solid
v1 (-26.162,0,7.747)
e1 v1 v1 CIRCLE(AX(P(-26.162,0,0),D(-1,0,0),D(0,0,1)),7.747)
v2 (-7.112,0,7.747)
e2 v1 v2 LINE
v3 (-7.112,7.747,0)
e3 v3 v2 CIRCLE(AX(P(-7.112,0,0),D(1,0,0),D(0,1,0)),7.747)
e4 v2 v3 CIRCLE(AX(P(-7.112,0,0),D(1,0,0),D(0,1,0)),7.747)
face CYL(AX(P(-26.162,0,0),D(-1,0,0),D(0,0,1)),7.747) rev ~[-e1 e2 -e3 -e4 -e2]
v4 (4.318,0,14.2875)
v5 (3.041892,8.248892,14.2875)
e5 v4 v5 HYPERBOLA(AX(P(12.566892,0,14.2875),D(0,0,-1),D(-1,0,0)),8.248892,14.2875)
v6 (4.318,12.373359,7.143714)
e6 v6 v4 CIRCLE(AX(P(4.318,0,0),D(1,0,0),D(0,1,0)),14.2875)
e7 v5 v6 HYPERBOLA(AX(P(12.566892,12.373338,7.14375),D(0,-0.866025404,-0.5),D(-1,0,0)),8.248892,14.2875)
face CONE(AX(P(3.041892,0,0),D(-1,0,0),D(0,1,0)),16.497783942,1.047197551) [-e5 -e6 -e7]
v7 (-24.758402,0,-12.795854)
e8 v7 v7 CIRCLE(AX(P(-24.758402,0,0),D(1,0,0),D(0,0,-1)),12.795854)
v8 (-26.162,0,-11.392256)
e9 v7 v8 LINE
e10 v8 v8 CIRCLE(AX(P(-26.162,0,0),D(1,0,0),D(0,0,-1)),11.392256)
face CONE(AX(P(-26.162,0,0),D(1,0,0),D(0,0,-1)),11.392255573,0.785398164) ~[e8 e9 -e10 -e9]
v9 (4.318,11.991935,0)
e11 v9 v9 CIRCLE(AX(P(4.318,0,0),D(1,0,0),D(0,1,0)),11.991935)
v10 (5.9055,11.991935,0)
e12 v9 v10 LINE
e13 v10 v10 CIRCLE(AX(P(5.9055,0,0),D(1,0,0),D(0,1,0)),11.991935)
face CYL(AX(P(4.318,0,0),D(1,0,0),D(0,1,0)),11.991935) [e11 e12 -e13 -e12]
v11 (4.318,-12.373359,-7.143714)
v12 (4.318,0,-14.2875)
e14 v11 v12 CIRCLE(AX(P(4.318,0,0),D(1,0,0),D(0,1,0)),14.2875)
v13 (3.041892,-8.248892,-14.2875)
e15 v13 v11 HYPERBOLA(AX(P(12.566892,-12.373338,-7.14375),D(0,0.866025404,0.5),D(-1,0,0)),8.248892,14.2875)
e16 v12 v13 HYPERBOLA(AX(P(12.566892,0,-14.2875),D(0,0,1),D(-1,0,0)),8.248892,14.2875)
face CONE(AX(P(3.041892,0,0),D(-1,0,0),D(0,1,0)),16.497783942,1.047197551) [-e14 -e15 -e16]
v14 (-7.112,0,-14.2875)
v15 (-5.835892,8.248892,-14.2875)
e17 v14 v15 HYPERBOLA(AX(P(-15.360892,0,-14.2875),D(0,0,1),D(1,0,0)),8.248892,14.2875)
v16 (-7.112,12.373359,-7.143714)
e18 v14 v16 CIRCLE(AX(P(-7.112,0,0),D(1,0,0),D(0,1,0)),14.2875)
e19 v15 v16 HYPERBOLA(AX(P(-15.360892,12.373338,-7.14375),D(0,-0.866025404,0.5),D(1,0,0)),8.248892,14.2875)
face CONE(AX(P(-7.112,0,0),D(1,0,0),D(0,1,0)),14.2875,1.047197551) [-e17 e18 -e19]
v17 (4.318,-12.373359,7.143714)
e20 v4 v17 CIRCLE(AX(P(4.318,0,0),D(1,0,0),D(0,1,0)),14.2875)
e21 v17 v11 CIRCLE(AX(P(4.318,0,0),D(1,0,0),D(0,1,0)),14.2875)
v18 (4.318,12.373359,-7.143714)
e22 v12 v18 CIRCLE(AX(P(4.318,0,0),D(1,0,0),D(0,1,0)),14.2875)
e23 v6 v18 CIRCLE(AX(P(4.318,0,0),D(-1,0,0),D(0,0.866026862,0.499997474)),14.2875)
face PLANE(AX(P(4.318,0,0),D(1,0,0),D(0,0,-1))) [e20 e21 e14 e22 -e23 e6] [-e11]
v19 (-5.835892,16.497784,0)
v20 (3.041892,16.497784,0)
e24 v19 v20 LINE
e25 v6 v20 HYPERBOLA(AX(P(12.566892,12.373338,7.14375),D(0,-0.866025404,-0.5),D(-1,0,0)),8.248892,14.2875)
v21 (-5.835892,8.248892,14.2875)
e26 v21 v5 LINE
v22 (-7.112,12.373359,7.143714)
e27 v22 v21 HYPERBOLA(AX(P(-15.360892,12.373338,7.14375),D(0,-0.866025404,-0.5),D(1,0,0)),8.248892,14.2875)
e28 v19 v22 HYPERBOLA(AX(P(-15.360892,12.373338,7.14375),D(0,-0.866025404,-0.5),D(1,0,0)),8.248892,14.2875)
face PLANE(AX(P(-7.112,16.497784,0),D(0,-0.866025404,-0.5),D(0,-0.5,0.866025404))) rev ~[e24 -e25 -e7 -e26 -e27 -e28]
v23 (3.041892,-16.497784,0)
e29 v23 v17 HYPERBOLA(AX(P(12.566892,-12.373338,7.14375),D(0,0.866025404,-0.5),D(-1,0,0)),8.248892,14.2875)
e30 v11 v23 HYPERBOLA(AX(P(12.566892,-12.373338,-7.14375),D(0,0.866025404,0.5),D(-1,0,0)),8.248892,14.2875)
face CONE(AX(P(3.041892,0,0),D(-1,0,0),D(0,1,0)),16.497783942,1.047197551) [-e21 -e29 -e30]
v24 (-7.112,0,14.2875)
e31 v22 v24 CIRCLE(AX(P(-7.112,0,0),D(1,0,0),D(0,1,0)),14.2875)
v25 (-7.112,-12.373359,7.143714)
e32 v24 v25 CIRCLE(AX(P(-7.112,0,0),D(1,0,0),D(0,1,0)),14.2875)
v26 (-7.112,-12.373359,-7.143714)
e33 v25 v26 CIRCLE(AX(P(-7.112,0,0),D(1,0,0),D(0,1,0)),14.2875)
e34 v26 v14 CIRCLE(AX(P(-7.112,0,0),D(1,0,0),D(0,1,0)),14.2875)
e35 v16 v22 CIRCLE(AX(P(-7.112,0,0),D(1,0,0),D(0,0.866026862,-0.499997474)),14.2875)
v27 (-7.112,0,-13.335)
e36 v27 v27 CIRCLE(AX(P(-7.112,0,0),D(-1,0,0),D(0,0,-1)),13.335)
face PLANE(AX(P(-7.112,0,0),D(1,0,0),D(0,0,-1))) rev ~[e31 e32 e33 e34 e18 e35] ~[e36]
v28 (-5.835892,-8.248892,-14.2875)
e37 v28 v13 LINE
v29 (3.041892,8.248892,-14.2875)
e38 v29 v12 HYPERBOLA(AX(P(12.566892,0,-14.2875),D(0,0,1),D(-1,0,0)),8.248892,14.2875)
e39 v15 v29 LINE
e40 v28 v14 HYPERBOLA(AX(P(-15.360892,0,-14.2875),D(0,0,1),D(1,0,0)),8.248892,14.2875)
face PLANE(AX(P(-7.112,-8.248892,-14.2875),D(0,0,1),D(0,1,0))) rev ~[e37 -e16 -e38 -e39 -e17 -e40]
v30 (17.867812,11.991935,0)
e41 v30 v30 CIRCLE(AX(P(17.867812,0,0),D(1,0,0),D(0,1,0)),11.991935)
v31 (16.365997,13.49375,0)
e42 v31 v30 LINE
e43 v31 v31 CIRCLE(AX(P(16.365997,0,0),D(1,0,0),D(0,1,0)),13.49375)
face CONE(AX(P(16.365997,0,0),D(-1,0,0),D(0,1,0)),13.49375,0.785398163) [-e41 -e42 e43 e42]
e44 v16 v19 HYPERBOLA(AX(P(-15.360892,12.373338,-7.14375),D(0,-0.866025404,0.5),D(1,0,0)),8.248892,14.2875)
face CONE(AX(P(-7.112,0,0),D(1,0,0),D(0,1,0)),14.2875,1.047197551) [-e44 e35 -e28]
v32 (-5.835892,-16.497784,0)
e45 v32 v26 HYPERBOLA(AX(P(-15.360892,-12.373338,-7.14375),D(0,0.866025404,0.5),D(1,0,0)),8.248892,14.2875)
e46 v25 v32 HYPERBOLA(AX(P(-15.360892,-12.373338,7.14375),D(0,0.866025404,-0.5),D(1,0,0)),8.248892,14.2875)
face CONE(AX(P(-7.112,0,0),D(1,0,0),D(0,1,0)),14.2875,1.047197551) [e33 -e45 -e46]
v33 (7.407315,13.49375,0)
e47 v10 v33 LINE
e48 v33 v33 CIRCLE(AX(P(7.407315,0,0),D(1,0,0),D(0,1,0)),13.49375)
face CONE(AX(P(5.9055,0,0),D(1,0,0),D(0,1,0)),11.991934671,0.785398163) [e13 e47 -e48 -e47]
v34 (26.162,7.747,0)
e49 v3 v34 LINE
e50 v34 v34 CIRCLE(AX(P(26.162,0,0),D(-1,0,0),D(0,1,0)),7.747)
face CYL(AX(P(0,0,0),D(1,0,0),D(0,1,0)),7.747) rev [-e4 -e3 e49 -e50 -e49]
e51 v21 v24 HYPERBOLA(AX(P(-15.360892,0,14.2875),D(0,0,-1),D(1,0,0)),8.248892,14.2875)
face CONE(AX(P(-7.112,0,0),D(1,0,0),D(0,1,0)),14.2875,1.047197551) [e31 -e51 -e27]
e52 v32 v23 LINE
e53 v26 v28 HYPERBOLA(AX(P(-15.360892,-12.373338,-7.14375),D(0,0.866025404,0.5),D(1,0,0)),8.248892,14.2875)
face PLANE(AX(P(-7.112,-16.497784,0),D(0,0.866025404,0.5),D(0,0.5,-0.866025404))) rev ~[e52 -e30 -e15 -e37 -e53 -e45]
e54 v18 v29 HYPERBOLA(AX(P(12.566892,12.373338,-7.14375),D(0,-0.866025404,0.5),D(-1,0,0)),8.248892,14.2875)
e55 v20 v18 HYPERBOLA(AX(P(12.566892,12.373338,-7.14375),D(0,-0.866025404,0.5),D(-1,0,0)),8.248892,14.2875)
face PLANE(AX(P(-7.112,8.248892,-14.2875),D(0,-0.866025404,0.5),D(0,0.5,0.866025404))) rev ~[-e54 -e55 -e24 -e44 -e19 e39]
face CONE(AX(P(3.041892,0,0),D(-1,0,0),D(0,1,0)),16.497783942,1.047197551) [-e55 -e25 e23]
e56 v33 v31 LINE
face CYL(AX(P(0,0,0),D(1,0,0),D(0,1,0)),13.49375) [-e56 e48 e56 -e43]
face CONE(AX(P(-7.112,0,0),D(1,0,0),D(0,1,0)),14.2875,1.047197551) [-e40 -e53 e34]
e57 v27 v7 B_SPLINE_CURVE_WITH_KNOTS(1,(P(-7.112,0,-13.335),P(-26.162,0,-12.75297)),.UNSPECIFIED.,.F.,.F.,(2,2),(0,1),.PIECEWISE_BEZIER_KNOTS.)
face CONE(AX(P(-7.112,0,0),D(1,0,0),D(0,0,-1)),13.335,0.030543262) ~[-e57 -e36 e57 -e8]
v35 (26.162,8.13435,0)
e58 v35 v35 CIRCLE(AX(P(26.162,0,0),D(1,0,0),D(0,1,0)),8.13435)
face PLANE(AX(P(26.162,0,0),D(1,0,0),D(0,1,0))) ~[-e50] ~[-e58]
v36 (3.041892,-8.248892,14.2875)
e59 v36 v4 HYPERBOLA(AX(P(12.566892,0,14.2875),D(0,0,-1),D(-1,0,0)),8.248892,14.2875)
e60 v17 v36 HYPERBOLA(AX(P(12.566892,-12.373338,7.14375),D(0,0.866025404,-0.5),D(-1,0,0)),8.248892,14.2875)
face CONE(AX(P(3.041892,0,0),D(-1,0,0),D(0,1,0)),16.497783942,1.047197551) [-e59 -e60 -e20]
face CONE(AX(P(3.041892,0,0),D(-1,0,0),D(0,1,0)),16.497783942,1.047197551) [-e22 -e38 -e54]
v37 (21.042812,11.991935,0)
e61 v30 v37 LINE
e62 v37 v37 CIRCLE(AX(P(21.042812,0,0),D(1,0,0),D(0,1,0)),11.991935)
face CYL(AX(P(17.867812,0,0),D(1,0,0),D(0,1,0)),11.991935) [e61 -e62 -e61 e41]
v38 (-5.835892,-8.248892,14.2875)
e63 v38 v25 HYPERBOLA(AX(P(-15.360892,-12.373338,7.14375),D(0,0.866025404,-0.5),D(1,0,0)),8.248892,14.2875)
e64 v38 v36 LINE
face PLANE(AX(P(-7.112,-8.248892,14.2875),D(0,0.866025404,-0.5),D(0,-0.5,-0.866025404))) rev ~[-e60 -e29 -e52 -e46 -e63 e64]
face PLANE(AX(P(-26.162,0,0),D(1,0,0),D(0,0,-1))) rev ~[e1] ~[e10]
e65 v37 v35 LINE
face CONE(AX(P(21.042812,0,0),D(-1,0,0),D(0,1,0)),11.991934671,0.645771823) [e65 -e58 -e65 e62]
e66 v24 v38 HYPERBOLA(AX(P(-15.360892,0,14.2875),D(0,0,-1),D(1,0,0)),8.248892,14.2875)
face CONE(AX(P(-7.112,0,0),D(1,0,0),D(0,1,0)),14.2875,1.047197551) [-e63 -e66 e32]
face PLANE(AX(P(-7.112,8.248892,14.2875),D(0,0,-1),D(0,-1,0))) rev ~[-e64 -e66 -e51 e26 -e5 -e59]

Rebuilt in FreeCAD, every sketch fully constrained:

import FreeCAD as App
import Part
import Sketcher
from FreeCAD import Vector
Q = App.Units.Quantity


def edges_at(feature, points):
    """Names of the edges that pass closest to the given points."""
    edges = feature.Shape.Edges
    near = lambda p: min(range(len(edges)), key=lambda i: edges[i].distToShape(Part.Vertex(*p))[0])
    return sorted({f"Edge{near(p) + 1}" for p in points})


def add_polygon(sketch, points):
    """Adds a closed chain of lines whose ends are joined by coincident constraints."""
    first, n = sketch.GeometryCount, len(points)
    for a, b in zip(points, points[1:] + points[:1]):
        sketch.addGeometry(Part.LineSegment(App.Vector(*a, 0), App.Vector(*b, 0)), False)
    for i in range(n):
        sketch.addConstraint(Sketcher.Constraint("Coincident", first + i, 2, first + (i + 1) % n, 1))

doc = App.newDocument("Part")
body = doc.addObject("PartDesign::Body", "Body")

# Sketch on XY plane
sketch1 = body.newObject("Sketcher::SketchObject", "Sketch")
sketch1.AttachmentSupport = (doc.getObject("XY_Plane"), [""])
sketch1.MapMode = "FlatFace"
add_polygon(sketch1, [(-26, 13), (-26, 0), (26, 0), (26, 13)])  # lines 0-3
sketch1.addConstraint([
    Sketcher.Constraint("Vertical", 0),
    Sketcher.Constraint("Horizontal", 1),
    Sketcher.Constraint("Vertical", 2),
    Sketcher.Constraint("Horizontal", 3),
    Sketcher.Constraint("Symmetric", 0, 2, 1, 2, -1, 1),
    Sketcher.Constraint("DistanceX", 1, 1, 1, 2, Q("2.06 in")),
    Sketcher.Constraint("DistanceY", 0, 2, 0, 1, Q("0.53125 in")),
])
revolution = body.newObject("PartDesign::Revolution", "Revolution")
revolution.Profile = sketch1
revolution.ReferenceAxis = (sketch1, ["H_Axis"])
revolution.Angle = 360

# Sketch on YZ plane
sketch2 = body.newObject("Sketcher::SketchObject", "Sketch001")
sketch2.AttachmentSupport = (doc.getObject("YZ_Plane"), [""])
sketch2.MapMode = "FlatFace"
sketch2.AttachmentOffset = App.Placement(Vector(0, 0, -0.28 * 25.4), App.Rotation())
add_polygon(sketch2, [(16, 0), (8, 14), (-8, 14), (-16, 0), (-8, -14), (8, -14)])  # lines 0-5
sketch2.addConstraint([
    Sketcher.Constraint("Horizontal", 1),
    Sketcher.Constraint("Horizontal", 4),
    Sketcher.Constraint("Symmetric", 0, 2, 3, 2, -1, 1),
    Sketcher.Constraint("Symmetric", 2, 2, 5, 2, -1, 1),
    Sketcher.Constraint("PointOnObject", 2, 2, -1),
    Sketcher.Constraint("Parallel", 2, 5),
    Sketcher.Constraint("Vertical", 1, 2, 3, 2),
    Sketcher.Constraint("Angle", 0, Q("120 deg")),
    Sketcher.Constraint("DistanceY", -1, 1, 0, 2, Q("0.5625 in")),
    Sketcher.Constraint("DistanceX", 1, 2, 1, 1, 16.497784),
])
pad1 = body.newObject("PartDesign::Pad", "Pad")
pad1.Profile = sketch2
pad1.Length = Q("0.45 in")

# Sketch on XY plane
sketch3 = body.newObject("Sketcher::SketchObject", "Sketch002")
sketch3.AttachmentSupport = (doc.getObject("XY_Plane"), [""])
sketch3.MapMode = "FlatFace"
add_polygon(sketch3, [(7.4, 13.5), (4.3, 13.5), (4.3, 12), (5.9, 12)])  # lines 0-3
add_polygon(sketch3, [(26.2, 13.5), (16.4, 13.5), (17.9, 12), (21, 12), (26.2, 8.1)])  # lines 4-8
sketch3.addConstraint([
    Sketcher.Constraint("Horizontal", 0),
    Sketcher.Constraint("Vertical", 1),
    Sketcher.Constraint("Horizontal", 2),
    Sketcher.Constraint("Horizontal", 4),
    Sketcher.Constraint("Horizontal", 6),
    Sketcher.Constraint("Vertical", 8),
    Sketcher.Constraint("Perpendicular", 3, 5),
    Sketcher.Constraint("Horizontal", 3, 2, 4, 2),
    Sketcher.Constraint("Horizontal", 2, 2, 5, 2),
    Sketcher.Constraint("Equal", 3, 5),
    Sketcher.Constraint("Angle", 7, Q("-37 deg")),
    Sketcher.Constraint("DistanceX", 2, 1, 2, 2, Q("0.0625 in")),
    Sketcher.Constraint("DistanceX", 6, 1, 6, 2, Q("0.125 in")),
    Sketcher.Constraint("DistanceY", 8, 1, 8, 2, Q("0.211 in")),
    Sketcher.Constraint("DistanceX", -1, 1, 0, 2, Q("0.17 in")),
    Sketcher.Constraint("DistanceX", -1, 1, 7, 2, Q("1.03 in")),
    Sketcher.Constraint("DistanceY", -1, 1, 0, 2, Q("0.53125 in")),
    Sketcher.Constraint("DistanceX", 0, 2, 0, 1, 3.089315),
])
groove = body.newObject("PartDesign::Groove", "Groove")
groove.Profile = sketch3
groove.ReferenceAxis = (sketch3, ["H_Axis"])
groove.Angle = 360

# Sketch on XY plane
sketch4 = body.newObject("Sketcher::SketchObject", "Sketch003")
sketch4.AttachmentSupport = (doc.getObject("XY_Plane"), [""])
sketch4.MapMode = "FlatFace"
add_polygon(sketch4, [(-26, 8), (-26, 0), (26, 0), (26, 8)])  # lines 0-3
sketch4.addConstraint([
    Sketcher.Constraint("Vertical", 0),
    Sketcher.Constraint("Horizontal", 1),
    Sketcher.Constraint("Vertical", 2),
    Sketcher.Constraint("Horizontal", 3),
    Sketcher.Constraint("Symmetric", 0, 2, 1, 2, -1, 1),
    Sketcher.Constraint("DistanceX", 1, 1, 1, 2, Q("2.06 in")),
    Sketcher.Constraint("DistanceY", 0, 2, 0, 1, Q("0.305 in")),
])
groove2 = body.newObject("PartDesign::Groove", "Groove001")
groove2.Profile = sketch4
groove2.ReferenceAxis = (sketch4, ["H_Axis"])
groove2.Angle = 360

# Sketch on XY plane
sketch5 = body.newObject("Sketcher::SketchObject", "Sketch004")
sketch5.AttachmentSupport = (doc.getObject("XY_Plane"), [""])
sketch5.MapMode = "FlatFace"
add_polygon(sketch5, [(-7.1, 16.5), (-7.1, 14.3), (-5.8, 16.5)])  # lines 0-2
add_polygon(sketch5, [(3, 16.5), (4.3, 14.3), (4.3, 16.5)])  # lines 3-5
sketch5.addConstraint([
    Sketcher.Constraint("Vertical", 0),
    Sketcher.Constraint("Horizontal", 2),
    Sketcher.Constraint("Vertical", 4),
    Sketcher.Constraint("Horizontal", 5),
    Sketcher.Constraint("Horizontal", 0, 2, 3, 2),
    Sketcher.Constraint("Horizontal", 2, 2, 4, 2),
    Sketcher.Constraint("Equal", 2, 5),
    Sketcher.Constraint("Angle", 1, Q("60 deg")),
    Sketcher.Constraint("DistanceX", 0, 2, -1, 1, Q("0.28 in")),
    Sketcher.Constraint("DistanceX", -1, 1, 3, 2, Q("0.17 in")),
    Sketcher.Constraint("DistanceY", -1, 1, 0, 2, Q("0.5625 in")),
    Sketcher.Constraint("DistanceX", 2, 2, 2, 1, 1.276108),
])
groove3 = body.newObject("PartDesign::Groove", "Groove002")
groove3.Profile = sketch5
groove3.ReferenceAxis = (sketch5, ["H_Axis"])
groove3.Angle = 360

# Sketch on YZ plane
sketch6 = body.newObject("Sketcher::SketchObject", "Sketch005")
sketch6.AttachmentSupport = (doc.getObject("YZ_Plane"), [""])
sketch6.MapMode = "FlatFace"
sketch6.AttachmentOffset = App.Placement(Vector(0, 0, -1.03 * 25.4), App.Rotation())
sketch6.addGeometry(Part.Circle(Vector(0, 0, 0), Vector(0, 0, 1), 13), False)
sketch6.addConstraint([
    Sketcher.Constraint("Coincident", 0, 3, -1, 1),
    Sketcher.Constraint("Diameter", 0, Q("1.0625 in")),
])
pocket1 = body.newObject("PartDesign::Pocket", "Pocket")
pocket1.Profile = sketch6
pocket1.Length = Q("0.75 in")
pocket1.Reversed = True
body2 = doc.addObject("PartDesign::Body", "Body001")

# Sketch on YZ plane
sketch7 = body2.newObject("Sketcher::SketchObject", "Sketch006")
sketch7.AttachmentSupport = (doc.getObject("YZ_Plane001"), [""])
sketch7.MapMode = "FlatFace"
sketch7.AttachmentOffset = App.Placement(Vector(0, 0, -0.28 * 25.4), App.Rotation())
sketch7.addGeometry(Part.Circle(Vector(0, 0, 0), Vector(0, 0, 1), 13), False)
sketch7.addConstraint([
    Sketcher.Constraint("Coincident", 0, 3, -1, 1),
    Sketcher.Constraint("Diameter", 0, Q("1.05 in")),
])
pad2 = body2.newObject("PartDesign::Pad", "Pad001")
pad2.Profile = sketch7
pad2.Length = Q("0.75 in")
pad2.Reversed = True
pad2.TaperAngle = -1.75
doc.recompute()

chamfer = body2.newObject("PartDesign::Chamfer", "Chamfer")
chamfer.Base = (pad2, edges_at(pad2, [(-26.162, 0, 12.753)]))
chamfer.ChamferType = "Two distances"
chamfer.Size = 1.404253
chamfer.Size2 = 1.360714

# Sketch on YZ plane
sketch8 = body2.newObject("Sketcher::SketchObject", "Sketch007")
sketch8.AttachmentSupport = (doc.getObject("YZ_Plane001"), [""])
sketch8.MapMode = "FlatFace"
sketch8.AttachmentOffset = App.Placement(Vector(0, 0, -0.28 * 25.4), App.Rotation())
sketch8.addGeometry(Part.Circle(Vector(0, 0, 0), Vector(0, 0, 1), 13), False)
sketch8.addConstraint([
    Sketcher.Constraint("Coincident", 0, 3, -1, 1),
    Sketcher.Constraint("Diameter", 0, Q("1.05 in")),
])
pad3 = body2.newObject("PartDesign::Pad", "Pad002")
pad3.Profile = sketch8
pad3.Length = Q("0.75 in")
pad3.Reversed = True
pad3.TaperAngle = -15
doc.recompute()

boolean = body2.newObject("PartDesign::Boolean", "Boolean")
boolean.Type = "Fuse"
boolean.addObjects([body])

# Sketch on YZ plane
sketch9 = body2.newObject("Sketcher::SketchObject", "Sketch008")
sketch9.AttachmentSupport = (doc.getObject("YZ_Plane001"), [""])
sketch9.MapMode = "FlatFace"
sketch9.AttachmentOffset = App.Placement(Vector(0, 0, -1.03 * 25.4), App.Rotation())
sketch9.addGeometry(Part.Circle(Vector(0, 0, 0), Vector(0, 0, 1), 8), False)
sketch9.addConstraint([
    Sketcher.Constraint("Coincident", 0, 3, -1, 1),
    Sketcher.Constraint("Diameter", 0, Q("0.61 in")),
])
pocket2 = body2.newObject("PartDesign::Pocket", "Pocket001")
pocket2.Profile = sketch9
pocket2.Length = Q("0.75 in")
pocket2.Reversed = True

doc.recompute()
